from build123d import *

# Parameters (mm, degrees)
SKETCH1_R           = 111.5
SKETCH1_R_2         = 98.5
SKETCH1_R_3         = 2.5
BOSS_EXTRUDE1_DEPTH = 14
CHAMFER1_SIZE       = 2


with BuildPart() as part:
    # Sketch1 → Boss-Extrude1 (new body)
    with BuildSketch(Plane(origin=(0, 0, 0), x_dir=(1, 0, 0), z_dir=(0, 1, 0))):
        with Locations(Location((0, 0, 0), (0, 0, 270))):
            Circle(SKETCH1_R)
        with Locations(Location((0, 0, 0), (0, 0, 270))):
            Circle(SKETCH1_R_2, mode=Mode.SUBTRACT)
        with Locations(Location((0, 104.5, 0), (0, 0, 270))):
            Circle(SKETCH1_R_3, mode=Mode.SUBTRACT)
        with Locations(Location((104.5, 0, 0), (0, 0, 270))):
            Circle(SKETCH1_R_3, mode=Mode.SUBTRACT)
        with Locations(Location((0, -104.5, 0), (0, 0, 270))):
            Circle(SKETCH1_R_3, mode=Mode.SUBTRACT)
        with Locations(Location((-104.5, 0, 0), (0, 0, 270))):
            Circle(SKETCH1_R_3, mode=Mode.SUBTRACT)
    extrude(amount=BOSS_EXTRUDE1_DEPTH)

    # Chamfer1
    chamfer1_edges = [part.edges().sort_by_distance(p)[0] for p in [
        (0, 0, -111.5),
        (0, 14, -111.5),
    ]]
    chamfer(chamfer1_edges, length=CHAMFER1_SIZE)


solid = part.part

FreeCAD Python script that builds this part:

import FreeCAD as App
import Part
import Sketcher

V = App.Vector
Q = App.Units.Quantity


def edges_at(feature, points):
    """Names of the edges that pass closest to the given points."""
    edges = feature.Shape.Edges
    near = lambda p: min(range(len(edges)), key=lambda i: edges[i].distToShape(Part.Vertex(*p))[0])
    return sorted({f"Edge{near(p) + 1}" for p in points})

doc = App.newDocument("Part")
body = doc.addObject("PartDesign::Body", "Body")

# Sketch on XZ plane
sketch1 = body.newObject("Sketcher::SketchObject", "Sketch")
sketch1.AttachmentSupport = (doc.getObject("XZ_Plane"), [""])
sketch1.MapMode = "FlatFace"
sketch1.addGeometry([
    Part.Circle(V(0, 0, 0), V(0, 0, 1), 111.5),  # 0
    Part.Circle(V(0, -104.5, 0), V(0, 0, 1), 2.5),  # 1
    Part.Circle(V(0, 0, 0), V(0, 0, 1), 98.5),  # 2
    Part.Circle(V(-104.5, 0, 0), V(0, 0, 1), 2.5),  # 3
    Part.Circle(V(104.5, 0, 0), V(0, 0, 1), 2.5),  # 4
    Part.Circle(V(0, 104.5, 0), V(0, 0, 1), 2.5),  # 5
], False)
sketch1.addConstraint([
    Sketcher.Constraint("Coincident", 0, 3, -1, 1),
    Sketcher.Constraint("Coincident", 2, 3, -1, 1),
    Sketcher.Constraint("Equal", 1, 3),
    Sketcher.Constraint("Equal", 3, 4),
    Sketcher.Constraint("Equal", 4, 5),
    Sketcher.Constraint("Symmetric", 3, 3, 4, 3, -1, 1),
    Sketcher.Constraint("Symmetric", 1, 3, 5, 3, -1, 1),
    Sketcher.Constraint("PointOnObject", 1, 3, -2),
    Sketcher.Constraint("PointOnObject", 3, 3, -1),
    Sketcher.Constraint("Diameter", 0, Q("223 mm")),
    Sketcher.Constraint("Diameter", 1, Q("5 mm")),
    Sketcher.Constraint("Diameter", 2, Q("197 mm")),
    Sketcher.Constraint("DistanceX", 3, 3, 4, 3, Q("209 mm")),
    Sketcher.Constraint("DistanceY", 1, 3, 5, 3, Q("209 mm")),
])
pad1 = body.newObject("PartDesign::Pad", "Pad")
pad1.Profile = sketch1
pad1.Length = 14
pad1.Reversed = True
doc.recompute()

chamfer = body.newObject("PartDesign::Chamfer", "Chamfer")
chamfer.Base = (pad1, edges_at(pad1, [(0, 0, -111.5), (0, 14, -111.5)]))
chamfer.Size = 2

doc.recompute()
